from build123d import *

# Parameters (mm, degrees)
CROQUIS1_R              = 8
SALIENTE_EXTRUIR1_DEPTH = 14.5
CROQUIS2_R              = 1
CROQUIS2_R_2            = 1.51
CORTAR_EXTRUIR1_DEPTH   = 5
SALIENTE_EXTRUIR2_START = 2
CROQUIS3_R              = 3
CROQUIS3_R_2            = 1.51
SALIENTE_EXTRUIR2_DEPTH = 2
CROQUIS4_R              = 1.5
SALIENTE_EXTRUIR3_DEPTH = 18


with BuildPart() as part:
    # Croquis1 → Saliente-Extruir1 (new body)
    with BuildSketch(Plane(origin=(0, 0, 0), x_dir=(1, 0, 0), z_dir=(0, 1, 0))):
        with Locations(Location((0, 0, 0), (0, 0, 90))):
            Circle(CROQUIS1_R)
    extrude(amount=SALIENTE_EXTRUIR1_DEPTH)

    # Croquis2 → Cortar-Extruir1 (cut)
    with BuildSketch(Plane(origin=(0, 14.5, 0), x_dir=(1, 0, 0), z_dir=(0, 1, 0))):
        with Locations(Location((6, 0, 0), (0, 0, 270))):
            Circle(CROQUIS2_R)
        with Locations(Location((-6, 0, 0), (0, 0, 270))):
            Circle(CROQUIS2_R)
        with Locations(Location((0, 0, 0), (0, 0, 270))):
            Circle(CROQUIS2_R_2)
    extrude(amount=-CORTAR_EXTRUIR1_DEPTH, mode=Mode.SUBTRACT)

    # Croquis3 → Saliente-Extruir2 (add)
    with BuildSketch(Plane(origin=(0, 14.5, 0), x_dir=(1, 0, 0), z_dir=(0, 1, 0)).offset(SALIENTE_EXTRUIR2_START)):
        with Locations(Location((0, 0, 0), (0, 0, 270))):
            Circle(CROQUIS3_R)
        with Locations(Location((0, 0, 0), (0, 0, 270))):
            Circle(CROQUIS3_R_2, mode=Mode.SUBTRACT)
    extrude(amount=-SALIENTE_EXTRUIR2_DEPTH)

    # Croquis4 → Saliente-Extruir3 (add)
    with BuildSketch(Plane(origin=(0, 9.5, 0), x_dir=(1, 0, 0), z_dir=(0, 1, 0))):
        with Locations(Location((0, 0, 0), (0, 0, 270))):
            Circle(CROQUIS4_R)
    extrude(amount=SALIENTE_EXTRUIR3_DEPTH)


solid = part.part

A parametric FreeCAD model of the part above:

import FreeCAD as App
import Part
import Sketcher

V = App.Vector

doc = App.newDocument("Part")
params = doc.addObject("Spreadsheet::Sheet", "Params")
for row, (alias, value) in enumerate([
    ("sketch1_diameter", "16 mm"),
    ("pad1_length", "14.5 mm"),
    ("sketch2_diameter", "2 mm"),
    ("sketch2_diameter2", "3.02 mm"),
    ("pocket1_length", "5 mm"),
    ("sketch3_diameter", "6 mm"),
    ("sketch3_diameter2", "3.02 mm"),
    ("pad2_length", "2 mm"),
    ("sketch4_diameter", "3 mm"),
    ("pad3_length", "18 mm"),
], start=1):
    params.set(f"A{row}", alias)
    params.set(f"B{row}", "=" + value)
    params.setAlias(f"B{row}", alias)

body = doc.addObject("PartDesign::Body", "Body")

# Sketch on XZ plane
sketch1 = body.newObject("Sketcher::SketchObject", "Sketch")
sketch1.AttachmentSupport = (doc.getObject("XZ_Plane"), [""])
sketch1.MapMode = "FlatFace"
sketch1.addGeometry(Part.Circle(V(0, 0, 0), V(0, 0, 1), 8), False)
sketch1.addConstraint(Sketcher.Constraint("Coincident", 0, 3, -1, 1))
sketch1.addConstraint(Sketcher.Constraint("Diameter", 0, 16.0))
sketch1.setExpression("Constraints[1]", "Params.sketch1_diameter")
pad1 = body.newObject("PartDesign::Pad", "Pad")
pad1.Profile = sketch1
pad1.setExpression("Length", "Params.pad1_length")
pad1.Reversed = True

# Sketch on XZ plane
sketch2 = body.newObject("Sketcher::SketchObject", "Sketch001")
sketch2.AttachmentSupport = (doc.getObject("XZ_Plane"), [""])
sketch2.MapMode = "FlatFace"
sketch2.AttachmentOffset = App.Placement(V(0, 0, -14.5), App.Rotation())
sketch2.addGeometry(Part.Circle(V(6, 0, 0), V(0, 0, 1), 1), False)
sketch2.addGeometry(Part.Circle(V(-6, 0, 0), V(0, 0, 1), 1), False)
sketch2.addGeometry(Part.Circle(V(0, 0, 0), V(0, 0, 1), 1.5), False)
sketch2.addConstraint(Sketcher.Constraint("Coincident", 2, 3, -1, 1))
sketch2.addConstraint(Sketcher.Constraint("Equal", 0, 1))
sketch2.addConstraint(Sketcher.Constraint("Symmetric", 0, 3, 1, 3, -1, 1))
sketch2.addConstraint(Sketcher.Constraint("PointOnObject", 0, 3, -1))
sketch2.addConstraint(Sketcher.Constraint("Diameter", 0, 2.0))
sketch2.addConstraint(Sketcher.Constraint("Diameter", 2, 3.02))
sketch2.addConstraint(Sketcher.Constraint("DistanceX", -1, 1, 0, 3, 6.0))
sketch2.setExpression("Constraints[4]", "Params.sketch2_diameter")
sketch2.setExpression("Constraints[5]", "Params.sketch2_diameter2")
pocket1 = body.newObject("PartDesign::Pocket", "Pocket")
pocket1.Profile = sketch2
pocket1.setExpression("Length", "Params.pocket1_length")
pocket1.Reversed = True

# Sketch on XZ plane
sketch3 = body.newObject("Sketcher::SketchObject", "Sketch002")
sketch3.AttachmentSupport = (doc.getObject("XZ_Plane"), [""])
sketch3.MapMode = "FlatFace"
sketch3.AttachmentOffset = App.Placement(V(0, 0, -16.5), App.Rotation())
sketch3.addGeometry(Part.Circle(V(0, 0, 0), V(0, 0, 1), 3), False)
sketch3.addGeometry(Part.Circle(V(0, 0, 0), V(0, 0, 1), 1.5), False)
sketch3.addConstraint(Sketcher.Constraint("Coincident", 0, 3, -1, 1))
sketch3.addConstraint(Sketcher.Constraint("Coincident", 1, 3, -1, 1))
sketch3.addConstraint(Sketcher.Constraint("Diameter", 0, 6.0))
sketch3.addConstraint(Sketcher.Constraint("Diameter", 1, 3.02))
sketch3.setExpression("Constraints[2]", "Params.sketch3_diameter")
sketch3.setExpression("Constraints[3]", "Params.sketch3_diameter2")
pad2 = body.newObject("PartDesign::Pad", "Pad001")
pad2.Profile = sketch3
pad2.setExpression("Length", "Params.pad2_length")

# Sketch on XZ plane
sketch4 = body.newObject("Sketcher::SketchObject", "Sketch003")
sketch4.AttachmentSupport = (doc.getObject("XZ_Plane"), [""])
sketch4.MapMode = "FlatFace"
sketch4.AttachmentOffset = App.Placement(V(0, 0, -9.5), App.Rotation())
sketch4.addGeometry(Part.Circle(V(0, 0, 0), V(0, 0, 1), 1.5), False)
sketch4.addConstraint(Sketcher.Constraint("Coincident", 0, 3, -1, 1))
sketch4.addConstraint(Sketcher.Constraint("Diameter", 0, 3.0))
sketch4.setExpression("Constraints[1]", "Params.sketch4_diameter")
pad3 = body.newObject("PartDesign::Pad", "Pad002")
pad3.Profile = sketch4
pad3.setExpression("Length", "Params.pad3_length")
pad3.Reversed = True

doc.recompute()
